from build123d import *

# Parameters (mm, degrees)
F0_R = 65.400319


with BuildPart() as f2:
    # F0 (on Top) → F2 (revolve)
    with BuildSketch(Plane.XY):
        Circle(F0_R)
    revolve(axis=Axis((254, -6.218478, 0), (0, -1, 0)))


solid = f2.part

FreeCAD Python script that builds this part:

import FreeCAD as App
import Part
import Sketcher

V = App.Vector

doc = App.newDocument("Part")
body = doc.addObject("PartDesign::Body", "Body")

# Sketch on XY plane
sketch1 = doc.addObject("Sketcher::SketchObject", "Sketch")
body.addObject(sketch1)
sketch1.AttachmentSupport = (doc.XY_Plane, [""])
sketch1.MapMode = "FlatFace"
sketch1.addGeometry(Part.Circle(V(0, 0, 0), V(0, 0, 1), 65.400319), False)
sketch1.addGeometry(Part.LineSegment(V(254, 0, 0), V(254, -10, 0)), True)  # axis
sketch1.addConstraint(Sketcher.Constraint("Vertical", 1))
sketch1.addConstraint(Sketcher.Constraint("Coincident", 0, 3, -1, 1))
sketch1.addConstraint(Sketcher.Constraint("PointOnObject", 1, 1, -1))
sketch1.addConstraint(Sketcher.Constraint("DistanceY", 1, 2, 1, 1, 10.0))
sketch1.addConstraint(Sketcher.Constraint("DistanceX", -1, 1, 1, 1, 254.0))
sketch1.addConstraint(Sketcher.Constraint("Diameter", 0, 130.800638))
revolution = doc.addObject("PartDesign::Revolution", "Revolution")
body.addObject(revolution)
revolution.Profile = sketch1
revolution.ReferenceAxis = (sketch1, ["Axis0"])
revolution.Angle = 360

doc.recompute()
